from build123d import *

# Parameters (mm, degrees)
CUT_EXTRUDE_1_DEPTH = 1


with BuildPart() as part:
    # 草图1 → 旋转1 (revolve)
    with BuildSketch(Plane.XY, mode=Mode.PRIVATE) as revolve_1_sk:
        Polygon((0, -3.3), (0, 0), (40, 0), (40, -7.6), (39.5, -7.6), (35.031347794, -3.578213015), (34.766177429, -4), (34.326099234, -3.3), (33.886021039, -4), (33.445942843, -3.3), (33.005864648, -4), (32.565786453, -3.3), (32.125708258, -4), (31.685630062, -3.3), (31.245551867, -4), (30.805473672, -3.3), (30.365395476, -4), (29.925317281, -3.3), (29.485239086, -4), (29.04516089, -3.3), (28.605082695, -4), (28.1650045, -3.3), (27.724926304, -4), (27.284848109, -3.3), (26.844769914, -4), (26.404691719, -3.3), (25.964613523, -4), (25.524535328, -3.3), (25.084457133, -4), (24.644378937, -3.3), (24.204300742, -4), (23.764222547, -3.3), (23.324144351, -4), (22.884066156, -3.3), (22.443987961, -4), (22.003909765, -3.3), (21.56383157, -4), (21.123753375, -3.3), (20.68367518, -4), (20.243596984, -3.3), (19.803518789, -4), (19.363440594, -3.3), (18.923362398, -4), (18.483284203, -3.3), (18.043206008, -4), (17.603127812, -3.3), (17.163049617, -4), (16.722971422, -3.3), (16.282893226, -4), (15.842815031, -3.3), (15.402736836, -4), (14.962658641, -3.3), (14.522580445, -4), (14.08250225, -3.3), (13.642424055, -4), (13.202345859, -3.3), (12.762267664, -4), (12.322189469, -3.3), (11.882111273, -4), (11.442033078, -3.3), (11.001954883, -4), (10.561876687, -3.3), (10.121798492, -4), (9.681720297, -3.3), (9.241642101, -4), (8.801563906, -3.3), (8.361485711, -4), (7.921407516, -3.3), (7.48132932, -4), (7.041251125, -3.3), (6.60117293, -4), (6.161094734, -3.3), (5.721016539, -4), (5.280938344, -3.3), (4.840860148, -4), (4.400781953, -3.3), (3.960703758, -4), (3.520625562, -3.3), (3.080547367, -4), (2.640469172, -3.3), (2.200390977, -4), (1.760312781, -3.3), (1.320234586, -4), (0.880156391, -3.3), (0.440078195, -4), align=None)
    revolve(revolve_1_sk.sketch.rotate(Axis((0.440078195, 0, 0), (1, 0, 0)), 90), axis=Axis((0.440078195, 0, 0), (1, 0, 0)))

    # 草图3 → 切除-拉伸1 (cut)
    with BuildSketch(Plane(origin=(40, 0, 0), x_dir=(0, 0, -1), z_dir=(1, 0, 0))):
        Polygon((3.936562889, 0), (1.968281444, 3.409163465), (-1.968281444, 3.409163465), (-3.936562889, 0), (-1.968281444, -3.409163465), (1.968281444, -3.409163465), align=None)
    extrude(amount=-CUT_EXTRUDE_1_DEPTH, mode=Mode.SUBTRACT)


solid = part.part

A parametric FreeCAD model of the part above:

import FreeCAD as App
import Part
import Sketcher
from FreeCAD import Vector
Q = App.Units.Quantity


def add_polygon(sketch, points):
    """Adds a closed chain of lines whose ends are joined by coincident constraints."""
    first, n = sketch.GeometryCount, len(points)
    for a, b in zip(points, points[1:] + points[:1]):
        sketch.addGeometry(Part.LineSegment(App.Vector(*a, 0), App.Vector(*b, 0)), False)
    for i in range(n):
        sketch.addConstraint(Sketcher.Constraint("Coincident", first + i, 2, first + (i + 1) % n, 1))

doc = App.newDocument("Part")
params = doc.addObject("Spreadsheet::Sheet", "Params")
for row, (alias, value) in enumerate([
    ("sketch1_width", "40 mm"),
    ("sketch1_width2", "0.5 mm"),
    ("sketch1_height", "3.3 mm"),
    ("sketch1_height2", "7.6 mm"),
    ("revolution_angle", "360 deg"),
    ("pocket1_length", "1 mm"),
], start=1):
    params.set(f"A{row}", alias)
    params.set(f"B{row}", "=" + value)
    params.setAlias(f"B{row}", alias)

body = doc.addObject("PartDesign::Body", "Body")

# Sketch on XY plane
sketch1 = doc.addObject("Sketcher::SketchObject", "Sketch")
body.addObject(sketch1)
sketch1.AttachmentSupport = (doc.XY_Plane, [""])
sketch1.MapMode = "FlatFace"
add_polygon(sketch1, [(0, 0), (0, -3.3), (0.440078, -4), (0.880156, -3.3), (1.320235, -4), (1.760313, -3.3), (2.200391, -4), (2.640469, -3.3), (3.080547, -4), (3.520626, -3.3), (3.960704, -4), (4.400782, -3.3), (4.84086, -4), (5.280938, -3.3), (5.721017, -4), (6.161095, -3.3), (6.601173, -4), (7.041251, -3.3), (7.481329, -4), (7.921408, -3.3), (8.361486, -4), (8.801564, -3.3), (9.241642, -4), (9.68172, -3.3), (10.121798, -4), (10.561877, -3.3), (11.001955, -4), (11.442033, -3.3), (11.882111, -4), (12.322189, -3.3), (12.762268, -4), (13.202346, -3.3), (13.642424, -4), (14.082502, -3.3), (14.52258, -4), (14.962659, -3.3), (15.402737, -4), (15.842815, -3.3), (16.282893, -4), (16.722971, -3.3), (17.16305, -4), (17.603128, -3.3), (18.043206, -4), (18.483284, -3.3), (18.923362, -4), (19.363441, -3.3), (19.803519, -4), (20.243597, -3.3), (20.683675, -4), (21.123753, -3.3), (21.563832, -4), (22.00391, -3.3), (22.443988, -4), (22.884066, -3.3), (23.324144, -4), (23.764223, -3.3), (24.204301, -4), (24.644379, -3.3), (25.084457, -4), (25.524535, -3.3), (25.964614, -4), (26.404692, -3.3), (26.84477, -4), (27.284848, -3.3), (27.724926, -4), (28.165004, -3.3), (28.605083, -4), (29.045161, -3.3), (29.485239, -4), (29.925317, -3.3), (30.365395, -4), (30.805474, -3.3), (31.245552, -4), (31.68563, -3.3), (32.125708, -4), (32.565786, -3.3), (33.005865, -4), (33.445943, -3.3), (33.886021, -4), (34.326099, -3.3), (34.766177, -4), (35.031348, -3.578213), (39.5, -7.6), (40, -7.6), (40, 0)])  # lines 0-84
sketch1.addConstraint([
    Sketcher.Constraint("Vertical", 0),
    Sketcher.Constraint("Horizontal", 82),
    Sketcher.Constraint("Vertical", 83),
    Sketcher.Constraint("Horizontal", 84),
    Sketcher.Constraint("Coincident", 84, 2, -1, 1),
    Sketcher.Constraint("Parallel", 1, 3),
    Sketcher.Constraint("Parallel", 2, 4),
    Sketcher.Constraint("Parallel", 3, 5),
    Sketcher.Constraint("Parallel", 4, 6),
    Sketcher.Constraint("Parallel", 5, 7),
    Sketcher.Constraint("Parallel", 6, 8),
    Sketcher.Constraint("Parallel", 7, 9),
    Sketcher.Constraint("Parallel", 8, 10),
    Sketcher.Constraint("Parallel", 9, 11),
    Sketcher.Constraint("Parallel", 10, 12),
    Sketcher.Constraint("Parallel", 11, 13),
    Sketcher.Constraint("Parallel", 12, 14),
    Sketcher.Constraint("Parallel", 13, 15),
    Sketcher.Constraint("Parallel", 14, 16),
    Sketcher.Constraint("Parallel", 15, 17),
    Sketcher.Constraint("Parallel", 16, 18),
    Sketcher.Constraint("Parallel", 17, 19),
    Sketcher.Constraint("Parallel", 18, 20),
    Sketcher.Constraint("Parallel", 19, 21),
    Sketcher.Constraint("Parallel", 20, 22),
    Sketcher.Constraint("Parallel", 21, 23),
    Sketcher.Constraint("Parallel", 22, 24),
    Sketcher.Constraint("Parallel", 23, 25),
    Sketcher.Constraint("Parallel", 24, 26),
    Sketcher.Constraint("Parallel", 25, 27),
    Sketcher.Constraint("Parallel", 26, 28),
    Sketcher.Constraint("Parallel", 27, 29),
    Sketcher.Constraint("Parallel", 28, 30),
    Sketcher.Constraint("Parallel", 29, 31),
    Sketcher.Constraint("Parallel", 30, 32),
    Sketcher.Constraint("Parallel", 31, 33),
    Sketcher.Constraint("Parallel", 32, 34),
    Sketcher.Constraint("Parallel", 33, 35),
    Sketcher.Constraint("Parallel", 34, 36),
    Sketcher.Constraint("Parallel", 35, 37),
    Sketcher.Constraint("Parallel", 36, 38),
    Sketcher.Constraint("Parallel", 37, 39),
    Sketcher.Constraint("Parallel", 38, 40),
    Sketcher.Constraint("Parallel", 39, 41),
    Sketcher.Constraint("Parallel", 40, 42),
    Sketcher.Constraint("Parallel", 41, 43),
    Sketcher.Constraint("Parallel", 42, 44),
    Sketcher.Constraint("Parallel", 43, 45),
    Sketcher.Constraint("Parallel", 44, 46),
    Sketcher.Constraint("Parallel", 45, 47),
    Sketcher.Constraint("Parallel", 46, 48),
    Sketcher.Constraint("Parallel", 47, 49),
    Sketcher.Constraint("Parallel", 48, 50),
    Sketcher.Constraint("Parallel", 49, 51),
    Sketcher.Constraint("Parallel", 50, 52),
    Sketcher.Constraint("Parallel", 51, 53),
    Sketcher.Constraint("Parallel", 52, 54),
    Sketcher.Constraint("Parallel", 53, 55),
    Sketcher.Constraint("Parallel", 54, 56),
    Sketcher.Constraint("Parallel", 55, 57),
    Sketcher.Constraint("Parallel", 56, 58),
    Sketcher.Constraint("Parallel", 57, 59),
    Sketcher.Constraint("Parallel", 58, 60),
    Sketcher.Constraint("Parallel", 59, 61),
    Sketcher.Constraint("Parallel", 60, 62),
    Sketcher.Constraint("Parallel", 61, 63),
    Sketcher.Constraint("Parallel", 62, 64),
    Sketcher.Constraint("Parallel", 63, 65),
    Sketcher.Constraint("Parallel", 64, 66),
    Sketcher.Constraint("Parallel", 65, 67),
    Sketcher.Constraint("Parallel", 66, 68),
    Sketcher.Constraint("Parallel", 67, 69),
    Sketcher.Constraint("Parallel", 68, 70),
    Sketcher.Constraint("Parallel", 69, 71),
    Sketcher.Constraint("Parallel", 70, 72),
    Sketcher.Constraint("Parallel", 71, 73),
    Sketcher.Constraint("Parallel", 72, 74),
    Sketcher.Constraint("Parallel", 73, 75),
    Sketcher.Constraint("Parallel", 74, 76),
    Sketcher.Constraint("Parallel", 75, 77),
    Sketcher.Constraint("Parallel", 76, 78),
    Sketcher.Constraint("Parallel", 77, 79),
    Sketcher.Constraint("Parallel", 78, 80),
    Sketcher.Constraint("Horizontal", 0, 2, 2, 2),
    Sketcher.Constraint("Horizontal", 1, 2, 3, 2),
    Sketcher.Constraint("Horizontal", 2, 2, 4, 2),
    Sketcher.Constraint("Horizontal", 3, 2, 5, 2),
    Sketcher.Constraint("Horizontal", 4, 2, 6, 2),
    Sketcher.Constraint("Horizontal", 5, 2, 7, 2),
    Sketcher.Constraint("Horizontal", 6, 2, 8, 2),
    Sketcher.Constraint("Horizontal", 7, 2, 9, 2),
    Sketcher.Constraint("Horizontal", 8, 2, 10, 2),
    Sketcher.Constraint("Horizontal", 9, 2, 11, 2),
    Sketcher.Constraint("Horizontal", 10, 2, 12, 2),
    Sketcher.Constraint("Horizontal", 11, 2, 13, 2),
    Sketcher.Constraint("Horizontal", 12, 2, 14, 2),
    Sketcher.Constraint("Horizontal", 13, 2, 15, 2),
    Sketcher.Constraint("Horizontal", 14, 2, 16, 2),
    Sketcher.Constraint("Horizontal", 15, 2, 17, 2),
    Sketcher.Constraint("Horizontal", 16, 2, 18, 2),
    Sketcher.Constraint("Horizontal", 17, 2, 19, 2),
    Sketcher.Constraint("Horizontal", 18, 2, 20, 2),
    Sketcher.Constraint("Horizontal", 19, 2, 21, 2),
    Sketcher.Constraint("Horizontal", 20, 2, 22, 2),
    Sketcher.Constraint("Horizontal", 21, 2, 23, 2),
    Sketcher.Constraint("Horizontal", 22, 2, 24, 2),
    Sketcher.Constraint("Horizontal", 23, 2, 25, 2),
    Sketcher.Constraint("Horizontal", 24, 2, 26, 2),
    Sketcher.Constraint("Horizontal", 25, 2, 27, 2),
    Sketcher.Constraint("Horizontal", 26, 2, 28, 2),
    Sketcher.Constraint("Horizontal", 27, 2, 29, 2),
    Sketcher.Constraint("Horizontal", 28, 2, 30, 2),
    Sketcher.Constraint("Horizontal", 29, 2, 31, 2),
    Sketcher.Constraint("Horizontal", 30, 2, 32, 2),
    Sketcher.Constraint("Horizontal", 31, 2, 33, 2),
    Sketcher.Constraint("Horizontal", 32, 2, 34, 2),
    Sketcher.Constraint("Horizontal", 33, 2, 35, 2),
    Sketcher.Constraint("Horizontal", 34, 2, 36, 2),
    Sketcher.Constraint("Horizontal", 35, 2, 37, 2),
    Sketcher.Constraint("Horizontal", 36, 2, 38, 2),
    Sketcher.Constraint("Horizontal", 37, 2, 39, 2),
    Sketcher.Constraint("Horizontal", 38, 2, 40, 2),
    Sketcher.Constraint("Horizontal", 39, 2, 41, 2),
    Sketcher.Constraint("Horizontal", 40, 2, 42, 2),
    Sketcher.Constraint("Horizontal", 41, 2, 43, 2),
    Sketcher.Constraint("Horizontal", 42, 2, 44, 2),
    Sketcher.Constraint("Horizontal", 43, 2, 45, 2),
    Sketcher.Constraint("Horizontal", 44, 2, 46, 2),
    Sketcher.Constraint("Horizontal", 45, 2, 47, 2),
    Sketcher.Constraint("Horizontal", 46, 2, 48, 2),
    Sketcher.Constraint("Horizontal", 47, 2, 49, 2),
    Sketcher.Constraint("Horizontal", 48, 2, 50, 2),
    Sketcher.Constraint("Horizontal", 49, 2, 51, 2),
    Sketcher.Constraint("Horizontal", 50, 2, 52, 2),
    Sketcher.Constraint("Horizontal", 51, 2, 53, 2),
    Sketcher.Constraint("Horizontal", 52, 2, 54, 2),
    Sketcher.Constraint("Horizontal", 53, 2, 55, 2),
    Sketcher.Constraint("Horizontal", 54, 2, 56, 2),
    Sketcher.Constraint("Horizontal", 55, 2, 57, 2),
    Sketcher.Constraint("Horizontal", 56, 2, 58, 2),
    Sketcher.Constraint("Horizontal", 57, 2, 59, 2),
    Sketcher.Constraint("Horizontal", 58, 2, 60, 2),
    Sketcher.Constraint("Horizontal", 59, 2, 61, 2),
    Sketcher.Constraint("Horizontal", 60, 2, 62, 2),
    Sketcher.Constraint("Horizontal", 61, 2, 63, 2),
    Sketcher.Constraint("Horizontal", 62, 2, 64, 2),
    Sketcher.Constraint("Horizontal", 63, 2, 65, 2),
    Sketcher.Constraint("Horizontal", 64, 2, 66, 2),
    Sketcher.Constraint("Horizontal", 65, 2, 67, 2),
    Sketcher.Constraint("Horizontal", 66, 2, 68, 2),
    Sketcher.Constraint("Horizontal", 67, 2, 69, 2),
    Sketcher.Constraint("Horizontal", 68, 2, 70, 2),
    Sketcher.Constraint("Horizontal", 69, 2, 71, 2),
    Sketcher.Constraint("Horizontal", 70, 2, 72, 2),
    Sketcher.Constraint("Horizontal", 71, 2, 73, 2),
    Sketcher.Constraint("Horizontal", 72, 2, 74, 2),
    Sketcher.Constraint("Horizontal", 73, 2, 75, 2),
    Sketcher.Constraint("Horizontal", 74, 2, 76, 2),
    Sketcher.Constraint("Horizontal", 75, 2, 77, 2),
    Sketcher.Constraint("Horizontal", 76, 2, 78, 2),
    Sketcher.Constraint("Horizontal", 77, 2, 79, 2),
    Sketcher.Constraint("Equal", 1, 2),
    Sketcher.Constraint("DistanceX", 84, 2, 84, 1, 40.0),
    Sketcher.Constraint("DistanceX", 82, 1, 82, 2, 0.5),
    Sketcher.Constraint("DistanceY", 0, 2, 0, 1, 3.3),
    Sketcher.Constraint("DistanceY", 83, 1, 83, 2, 7.6),
    Sketcher.Constraint("DistanceY", 1, 2, -1, 1, 4.0),
    Sketcher.Constraint("DistanceX", -1, 1, 23, 2, 10.121798),
    Sketcher.Constraint("Distance", 80, 0.498216),
])
sketch1.setExpression("Constraints[247]", "Params.sketch1_width")
sketch1.setExpression("Constraints[248]", "Params.sketch1_width2")
sketch1.setExpression("Constraints[249]", "Params.sketch1_height")
sketch1.setExpression("Constraints[250]", "Params.sketch1_height2")
revolution = doc.addObject("PartDesign::Revolution", "Revolution")
body.addObject(revolution)
revolution.Profile = sketch1
revolution.ReferenceAxis = (sketch1, ["H_Axis"])
revolution.setExpression("Angle", "Params.revolution_angle")

# Sketch on YZ plane
sketch2 = doc.addObject("Sketcher::SketchObject", "Sketch001")
body.addObject(sketch2)
sketch2.AttachmentSupport = (doc.YZ_Plane, [""])
sketch2.MapMode = "FlatFace"
sketch2.AttachmentOffset = App.Placement(Vector(0, 0, 40), App.Rotation())
add_polygon(sketch2, [(0, -3.936563), (3.409163, -1.968281), (3.409163, 1.968281), (0, 3.936563), (-3.409163, 1.968281), (-3.409163, -1.968281)])  # lines 0-5
sketch2.addConstraint([
    Sketcher.Constraint("Vertical", 1),
    Sketcher.Constraint("Vertical", 4),
    Sketcher.Constraint("Symmetric", 0, 2, 3, 2, -1, 1),
    Sketcher.Constraint("Symmetric", 2, 2, 5, 2, -1, 1),
    Sketcher.Constraint("PointOnObject", 2, 2, -2),
    Sketcher.Constraint("Parallel", 2, 5),
    Sketcher.Constraint("Horizontal", 1, 2, 3, 2),
    Sketcher.Constraint("Angle", 0, Q("30 deg")),
    Sketcher.Constraint("DistanceY", 1, 1, 1, 2, 3.936563),
    Sketcher.Constraint("DistanceY", 1, 2, 2, 2, 1.968281),
])
pocket1 = doc.addObject("PartDesign::Pocket", "Pocket")
body.addObject(pocket1)
pocket1.Profile = sketch2
pocket1.setExpression("Length", "Params.pocket1_length")

doc.recompute()
